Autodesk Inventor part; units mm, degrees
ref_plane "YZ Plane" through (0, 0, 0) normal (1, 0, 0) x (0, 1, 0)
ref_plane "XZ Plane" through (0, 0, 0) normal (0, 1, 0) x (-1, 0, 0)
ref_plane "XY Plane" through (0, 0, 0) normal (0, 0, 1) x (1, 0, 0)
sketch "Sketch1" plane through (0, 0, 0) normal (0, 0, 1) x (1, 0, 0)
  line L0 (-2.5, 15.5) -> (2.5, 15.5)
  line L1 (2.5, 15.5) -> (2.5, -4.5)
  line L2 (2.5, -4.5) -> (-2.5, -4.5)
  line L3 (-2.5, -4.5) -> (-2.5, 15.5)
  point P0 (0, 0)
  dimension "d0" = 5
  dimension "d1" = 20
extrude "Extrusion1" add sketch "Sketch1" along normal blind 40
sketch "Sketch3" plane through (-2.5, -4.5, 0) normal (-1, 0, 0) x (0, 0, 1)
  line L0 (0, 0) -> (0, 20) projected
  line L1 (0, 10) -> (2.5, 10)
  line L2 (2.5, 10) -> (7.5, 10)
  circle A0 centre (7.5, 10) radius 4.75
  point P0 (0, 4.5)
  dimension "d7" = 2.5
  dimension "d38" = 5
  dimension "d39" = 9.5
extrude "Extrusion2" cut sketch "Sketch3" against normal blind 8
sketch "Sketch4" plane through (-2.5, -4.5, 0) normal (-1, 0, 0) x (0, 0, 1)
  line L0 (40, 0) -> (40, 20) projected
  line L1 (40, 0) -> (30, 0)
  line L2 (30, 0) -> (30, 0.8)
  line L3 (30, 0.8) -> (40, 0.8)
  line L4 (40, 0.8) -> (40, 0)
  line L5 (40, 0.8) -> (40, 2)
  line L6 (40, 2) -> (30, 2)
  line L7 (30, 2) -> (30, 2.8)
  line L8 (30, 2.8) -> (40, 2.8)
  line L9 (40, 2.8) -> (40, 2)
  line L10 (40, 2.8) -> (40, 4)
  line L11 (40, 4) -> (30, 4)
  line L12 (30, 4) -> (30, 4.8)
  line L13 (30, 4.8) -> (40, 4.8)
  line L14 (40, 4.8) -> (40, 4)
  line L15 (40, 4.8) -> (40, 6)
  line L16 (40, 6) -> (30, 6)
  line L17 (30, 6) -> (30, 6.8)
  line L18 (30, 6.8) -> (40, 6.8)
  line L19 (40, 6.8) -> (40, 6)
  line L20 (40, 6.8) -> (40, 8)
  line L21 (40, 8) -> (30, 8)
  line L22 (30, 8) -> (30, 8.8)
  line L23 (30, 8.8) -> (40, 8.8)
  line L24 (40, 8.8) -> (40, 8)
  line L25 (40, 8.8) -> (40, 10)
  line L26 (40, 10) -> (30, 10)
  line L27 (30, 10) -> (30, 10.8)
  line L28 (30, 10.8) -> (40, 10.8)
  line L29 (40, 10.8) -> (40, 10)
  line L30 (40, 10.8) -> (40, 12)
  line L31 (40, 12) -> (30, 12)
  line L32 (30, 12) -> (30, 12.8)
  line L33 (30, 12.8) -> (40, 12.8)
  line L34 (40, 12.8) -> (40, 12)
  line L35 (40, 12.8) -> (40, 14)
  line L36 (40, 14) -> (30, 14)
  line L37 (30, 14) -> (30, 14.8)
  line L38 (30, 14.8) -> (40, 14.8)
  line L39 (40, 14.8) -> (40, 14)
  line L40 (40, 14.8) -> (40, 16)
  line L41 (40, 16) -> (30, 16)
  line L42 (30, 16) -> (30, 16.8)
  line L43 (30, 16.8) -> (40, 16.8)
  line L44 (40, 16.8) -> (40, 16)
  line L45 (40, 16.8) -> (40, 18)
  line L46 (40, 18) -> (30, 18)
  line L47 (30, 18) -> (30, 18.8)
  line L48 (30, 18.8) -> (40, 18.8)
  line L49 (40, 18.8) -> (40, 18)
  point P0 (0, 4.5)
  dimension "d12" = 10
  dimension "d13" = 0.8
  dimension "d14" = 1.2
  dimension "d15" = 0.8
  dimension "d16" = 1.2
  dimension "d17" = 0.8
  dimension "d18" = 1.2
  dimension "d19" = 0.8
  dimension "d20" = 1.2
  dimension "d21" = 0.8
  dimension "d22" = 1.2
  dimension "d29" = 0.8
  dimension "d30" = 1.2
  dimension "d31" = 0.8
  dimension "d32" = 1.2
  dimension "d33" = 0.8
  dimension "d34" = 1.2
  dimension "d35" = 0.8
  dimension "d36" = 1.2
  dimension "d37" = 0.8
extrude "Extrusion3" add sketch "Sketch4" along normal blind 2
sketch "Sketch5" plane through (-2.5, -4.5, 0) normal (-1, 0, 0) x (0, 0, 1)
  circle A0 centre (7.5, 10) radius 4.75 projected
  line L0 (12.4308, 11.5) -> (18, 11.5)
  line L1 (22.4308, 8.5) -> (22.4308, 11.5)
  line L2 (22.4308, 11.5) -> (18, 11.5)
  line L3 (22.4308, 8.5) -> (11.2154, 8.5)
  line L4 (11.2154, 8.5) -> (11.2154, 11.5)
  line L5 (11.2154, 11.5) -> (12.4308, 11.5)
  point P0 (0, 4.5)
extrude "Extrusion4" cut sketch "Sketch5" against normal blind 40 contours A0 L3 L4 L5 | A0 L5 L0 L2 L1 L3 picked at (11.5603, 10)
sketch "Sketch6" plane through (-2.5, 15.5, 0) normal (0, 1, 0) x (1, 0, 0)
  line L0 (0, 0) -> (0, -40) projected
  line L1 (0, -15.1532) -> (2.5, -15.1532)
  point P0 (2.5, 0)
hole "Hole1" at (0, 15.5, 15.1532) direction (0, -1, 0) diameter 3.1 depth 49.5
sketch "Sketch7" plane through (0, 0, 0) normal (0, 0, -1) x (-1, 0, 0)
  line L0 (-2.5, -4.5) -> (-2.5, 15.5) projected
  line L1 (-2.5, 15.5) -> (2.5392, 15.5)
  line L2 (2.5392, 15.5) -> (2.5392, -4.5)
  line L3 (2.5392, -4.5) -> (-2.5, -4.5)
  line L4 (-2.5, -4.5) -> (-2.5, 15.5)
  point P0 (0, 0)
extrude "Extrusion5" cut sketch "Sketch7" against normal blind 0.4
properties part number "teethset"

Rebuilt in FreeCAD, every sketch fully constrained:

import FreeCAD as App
import Part
import Sketcher
from FreeCAD import Vector

doc = App.newDocument("Part")
body = doc.addObject("PartDesign::Body", "Body")

# Sketch on XY plane
sketch1 = doc.addObject("Sketcher::SketchObject", "Sketch")
body.addObject(sketch1)
sketch1.AttachmentSupport = (doc.XY_Plane, [""])
sketch1.MapMode = "FlatFace"
sketch1.addGeometry([
    Part.LineSegment(Vector(2.5, 15.5, 0), Vector(-2.5, 15.5, 0)),
    Part.LineSegment(Vector(-2.5, 15.5, 0), Vector(-2.5, -4.5, 0)),
    Part.LineSegment(Vector(-2.5, -4.5, 0), Vector(2.5, -4.5, 0)),
    Part.LineSegment(Vector(2.5, -4.5, 0), Vector(2.5, 15.5, 0)),
], False)
sketch1.addConstraint([
    Sketcher.Constraint("Coincident", 0, 2, 1, 1),
    Sketcher.Constraint("Coincident", 1, 2, 2, 1),
    Sketcher.Constraint("Coincident", 2, 2, 3, 1),
    Sketcher.Constraint("Coincident", 3, 2, 0, 1),
    Sketcher.Constraint("Horizontal", 0),
    Sketcher.Constraint("Vertical", 1),
    Sketcher.Constraint("Horizontal", 2),
    Sketcher.Constraint("Vertical", 3),
    Sketcher.Constraint("DistanceX", 0, 2, 0, 1, 5.0),
    Sketcher.Constraint("DistanceY", 1, 2, 1, 1, 20.0),
    Sketcher.Constraint("DistanceX", 0, 2, -1, 1, 2.5),
    Sketcher.Constraint("DistanceY", -1, 1, 0, 2, 15.5),
])
pad1 = doc.addObject("PartDesign::Pad", "Pad")
body.addObject(pad1)
pad1.Profile = sketch1
pad1.Length = 40

# Sketch on YZ plane
sketch2 = doc.addObject("Sketcher::SketchObject", "Sketch001")
body.addObject(sketch2)
sketch2.AttachmentSupport = (doc.YZ_Plane, [""])
sketch2.MapMode = "FlatFace"
sketch2.AttachmentOffset = App.Placement(Vector(0, 0, -2.5), App.Rotation())
sketch2.addGeometry(Part.Circle(Vector(5.5, 7.5, 0), Vector(0, 0, 1), 4.75), False)
sketch2.addConstraint([
    Sketcher.Constraint("Diameter", 0, 9.5),
    Sketcher.Constraint("DistanceX", -1, 1, 0, 3, 5.5),
    Sketcher.Constraint("DistanceY", -1, 1, 0, 3, 7.5),
])
pocket1 = doc.addObject("PartDesign::Pocket", "Pocket")
body.addObject(pocket1)
pocket1.Profile = sketch2
pocket1.Length = 8
pocket1.Reversed = True

# Sketch on YZ plane
sketch3 = doc.addObject("Sketcher::SketchObject", "Sketch002")
body.addObject(sketch3)
sketch3.AttachmentSupport = (doc.YZ_Plane, [""])
sketch3.MapMode = "FlatFace"
sketch3.AttachmentOffset = App.Placement(Vector(0, 0, -2.5), App.Rotation())
sketch3.addGeometry([
    Part.LineSegment(Vector(-4.5, 30, 0), Vector(-4.5, 40, 0)),  # 0
    Part.LineSegment(Vector(-4.5, 40, 0), Vector(-3.7, 40, 0)),  # 1
    Part.LineSegment(Vector(-3.7, 40, 0), Vector(-3.7, 30, 0)),  # 2
    Part.LineSegment(Vector(-3.7, 30, 0), Vector(-4.5, 30, 0)),  # 3
    Part.LineSegment(Vector(13.5, 30, 0), Vector(13.5, 40, 0)),  # 4
    Part.LineSegment(Vector(13.5, 40, 0), Vector(14.3, 40, 0)),  # 5
    Part.LineSegment(Vector(14.3, 40, 0), Vector(14.3, 30, 0)),  # 6
    Part.LineSegment(Vector(14.3, 30, 0), Vector(13.5, 30, 0)),  # 7
    Part.LineSegment(Vector(11.5, 30, 0), Vector(11.5, 40, 0)),  # 8
    Part.LineSegment(Vector(11.5, 40, 0), Vector(12.3, 40, 0)),  # 9
    Part.LineSegment(Vector(12.3, 40, 0), Vector(12.3, 30, 0)),  # 10
    Part.LineSegment(Vector(12.3, 30, 0), Vector(11.5, 30, 0)),  # 11
    Part.LineSegment(Vector(9.5, 30, 0), Vector(9.5, 40, 0)),  # 12
    Part.LineSegment(Vector(9.5, 40, 0), Vector(10.3, 40, 0)),  # 13
    Part.LineSegment(Vector(10.3, 40, 0), Vector(10.3, 30, 0)),  # 14
    Part.LineSegment(Vector(10.3, 30, 0), Vector(9.5, 30, 0)),  # 15
    Part.LineSegment(Vector(7.5, 30, 0), Vector(7.5, 40, 0)),  # 16
    Part.LineSegment(Vector(7.5, 40, 0), Vector(8.3, 40, 0)),  # 17
    Part.LineSegment(Vector(8.3, 40, 0), Vector(8.3, 30, 0)),  # 18
    Part.LineSegment(Vector(8.3, 30, 0), Vector(7.5, 30, 0)),  # 19
    Part.LineSegment(Vector(5.5, 30, 0), Vector(5.5, 40, 0)),  # 20
    Part.LineSegment(Vector(5.5, 40, 0), Vector(6.3, 40, 0)),  # 21
    Part.LineSegment(Vector(6.3, 40, 0), Vector(6.3, 30, 0)),  # 22
    Part.LineSegment(Vector(6.3, 30, 0), Vector(5.5, 30, 0)),  # 23
    Part.LineSegment(Vector(3.5, 30, 0), Vector(3.5, 40, 0)),  # 24
    Part.LineSegment(Vector(3.5, 40, 0), Vector(4.3, 40, 0)),  # 25
    Part.LineSegment(Vector(4.3, 40, 0), Vector(4.3, 30, 0)),  # 26
    Part.LineSegment(Vector(4.3, 30, 0), Vector(3.5, 30, 0)),  # 27
    Part.LineSegment(Vector(1.5, 30, 0), Vector(1.5, 40, 0)),  # 28
    Part.LineSegment(Vector(1.5, 40, 0), Vector(2.3, 40, 0)),  # 29
    Part.LineSegment(Vector(2.3, 40, 0), Vector(2.3, 30, 0)),  # 30
    Part.LineSegment(Vector(2.3, 30, 0), Vector(1.5, 30, 0)),  # 31
    Part.LineSegment(Vector(-0.5, 30, 0), Vector(-0.5, 40, 0)),  # 32
    Part.LineSegment(Vector(-0.5, 40, 0), Vector(0.3, 40, 0)),  # 33
    Part.LineSegment(Vector(0.3, 40, 0), Vector(0.3, 30, 0)),  # 34
    Part.LineSegment(Vector(0.3, 30, 0), Vector(-0.5, 30, 0)),  # 35
    Part.LineSegment(Vector(-2.5, 30, 0), Vector(-2.5, 40, 0)),  # 36
    Part.LineSegment(Vector(-2.5, 40, 0), Vector(-1.7, 40, 0)),  # 37
    Part.LineSegment(Vector(-1.7, 40, 0), Vector(-1.7, 30, 0)),  # 38
    Part.LineSegment(Vector(-1.7, 30, 0), Vector(-2.5, 30, 0)),  # 39
], False)
sketch3.addConstraint([
    Sketcher.Constraint("Coincident", 0, 2, 1, 1),
    Sketcher.Constraint("Coincident", 1, 2, 2, 1),
    Sketcher.Constraint("Coincident", 2, 2, 3, 1),
    Sketcher.Constraint("Coincident", 3, 2, 0, 1),
    Sketcher.Constraint("Coincident", 4, 2, 5, 1),
    Sketcher.Constraint("Coincident", 5, 2, 6, 1),
    Sketcher.Constraint("Coincident", 6, 2, 7, 1),
    Sketcher.Constraint("Coincident", 7, 2, 4, 1),
    Sketcher.Constraint("Coincident", 8, 2, 9, 1),
    Sketcher.Constraint("Coincident", 9, 2, 10, 1),
    Sketcher.Constraint("Coincident", 10, 2, 11, 1),
    Sketcher.Constraint("Coincident", 11, 2, 8, 1),
    Sketcher.Constraint("Coincident", 12, 2, 13, 1),
    Sketcher.Constraint("Coincident", 13, 2, 14, 1),
    Sketcher.Constraint("Coincident", 14, 2, 15, 1),
    Sketcher.Constraint("Coincident", 15, 2, 12, 1),
    Sketcher.Constraint("Coincident", 16, 2, 17, 1),
    Sketcher.Constraint("Coincident", 17, 2, 18, 1),
    Sketcher.Constraint("Coincident", 18, 2, 19, 1),
    Sketcher.Constraint("Coincident", 19, 2, 16, 1),
    Sketcher.Constraint("Coincident", 20, 2, 21, 1),
    Sketcher.Constraint("Coincident", 21, 2, 22, 1),
    Sketcher.Constraint("Coincident", 22, 2, 23, 1),
    Sketcher.Constraint("Coincident", 23, 2, 20, 1),
    Sketcher.Constraint("Coincident", 24, 2, 25, 1),
    Sketcher.Constraint("Coincident", 25, 2, 26, 1),
    Sketcher.Constraint("Coincident", 26, 2, 27, 1),
    Sketcher.Constraint("Coincident", 27, 2, 24, 1),
    Sketcher.Constraint("Coincident", 28, 2, 29, 1),
    Sketcher.Constraint("Coincident", 29, 2, 30, 1),
    Sketcher.Constraint("Coincident", 30, 2, 31, 1),
    Sketcher.Constraint("Coincident", 31, 2, 28, 1),
    Sketcher.Constraint("Coincident", 32, 2, 33, 1),
    Sketcher.Constraint("Coincident", 33, 2, 34, 1),
    Sketcher.Constraint("Coincident", 34, 2, 35, 1),
    Sketcher.Constraint("Coincident", 35, 2, 32, 1),
    Sketcher.Constraint("Coincident", 36, 2, 37, 1),
    Sketcher.Constraint("Coincident", 37, 2, 38, 1),
    Sketcher.Constraint("Coincident", 38, 2, 39, 1),
    Sketcher.Constraint("Coincident", 39, 2, 36, 1),
    Sketcher.Constraint("Vertical", 0),
    Sketcher.Constraint("Horizontal", 1),
    Sketcher.Constraint("Vertical", 2),
    Sketcher.Constraint("Horizontal", 3),
    Sketcher.Constraint("Vertical", 4),
    Sketcher.Constraint("Horizontal", 5),
    Sketcher.Constraint("Vertical", 6),
    Sketcher.Constraint("Horizontal", 7),
    Sketcher.Constraint("Vertical", 8),
    Sketcher.Constraint("Horizontal", 9),
    Sketcher.Constraint("Vertical", 10),
    Sketcher.Constraint("Horizontal", 11),
    Sketcher.Constraint("Vertical", 12),
    Sketcher.Constraint("Horizontal", 13),
    Sketcher.Constraint("Vertical", 14),
    Sketcher.Constraint("Horizontal", 15),
    Sketcher.Constraint("Vertical", 16),
    Sketcher.Constraint("Horizontal", 17),
    Sketcher.Constraint("Vertical", 18),
    Sketcher.Constraint("Horizontal", 19),
    Sketcher.Constraint("Vertical", 20),
    Sketcher.Constraint("Horizontal", 21),
    Sketcher.Constraint("Vertical", 22),
    Sketcher.Constraint("Horizontal", 23),
    Sketcher.Constraint("Vertical", 24),
    Sketcher.Constraint("Horizontal", 25),
    Sketcher.Constraint("Vertical", 26),
    Sketcher.Constraint("Horizontal", 27),
    Sketcher.Constraint("Vertical", 28),
    Sketcher.Constraint("Horizontal", 29),
    Sketcher.Constraint("Vertical", 30),
    Sketcher.Constraint("Horizontal", 31),
    Sketcher.Constraint("Vertical", 32),
    Sketcher.Constraint("Horizontal", 33),
    Sketcher.Constraint("Vertical", 34),
    Sketcher.Constraint("Horizontal", 35),
    Sketcher.Constraint("Vertical", 36),
    Sketcher.Constraint("Horizontal", 37),
    Sketcher.Constraint("Vertical", 38),
    Sketcher.Constraint("Horizontal", 39),
    Sketcher.Constraint("Horizontal", 1, 2, 4, 2),
    Sketcher.Constraint("Horizontal", 3, 2, 6, 2),
    Sketcher.Constraint("Horizontal", 5, 2, 8, 2),
    Sketcher.Constraint("Horizontal", 7, 2, 10, 2),
    Sketcher.Constraint("Horizontal", 9, 2, 12, 2),
    Sketcher.Constraint("Horizontal", 11, 2, 14, 2),
    Sketcher.Constraint("Horizontal", 13, 2, 16, 2),
    Sketcher.Constraint("Horizontal", 15, 2, 18, 2),
    Sketcher.Constraint("Horizontal", 17, 2, 20, 2),
    Sketcher.Constraint("Horizontal", 19, 2, 22, 2),
    Sketcher.Constraint("Horizontal", 21, 2, 24, 2),
    Sketcher.Constraint("Horizontal", 23, 2, 26, 2),
    Sketcher.Constraint("Horizontal", 25, 2, 28, 2),
    Sketcher.Constraint("Horizontal", 27, 2, 30, 2),
    Sketcher.Constraint("Horizontal", 29, 2, 32, 2),
    Sketcher.Constraint("Horizontal", 31, 2, 34, 2),
    Sketcher.Constraint("Horizontal", 33, 2, 36, 2),
    Sketcher.Constraint("Horizontal", 35, 2, 38, 2),
    Sketcher.Constraint("Equal", 3, 5),
    Sketcher.Constraint("Equal", 7, 9),
    Sketcher.Constraint("Equal", 11, 13),
    Sketcher.Constraint("Equal", 15, 17),
    Sketcher.Constraint("Equal", 19, 21),
    Sketcher.Constraint("Equal", 23, 25),
    Sketcher.Constraint("Equal", 27, 29),
    Sketcher.Constraint("Equal", 31, 33),
    Sketcher.Constraint("Equal", 35, 37),
    Sketcher.Constraint("DistanceY", 0, 1, 0, 2, 10.0),
    Sketcher.Constraint("DistanceX", 1, 1, 1, 2, 0.8),
    Sketcher.Constraint("DistanceX", 9, 2, 4, 2, 1.2),
    Sketcher.Constraint("DistanceX", 13, 2, 8, 2, 1.2),
    Sketcher.Constraint("DistanceX", 17, 2, 12, 2, 1.2),
    Sketcher.Constraint("DistanceX", 21, 2, 16, 2, 1.2),
    Sketcher.Constraint("DistanceX", 25, 2, 20, 2, 1.2),
    Sketcher.Constraint("DistanceX", 29, 2, 24, 2, 1.2),
    Sketcher.Constraint("DistanceX", 33, 2, 28, 2, 1.2),
    Sketcher.Constraint("DistanceX", 1, 2, 36, 2, 1.2),
    Sketcher.Constraint("DistanceX", 37, 2, 32, 2, 1.2),
    Sketcher.Constraint("DistanceY", -1, 1, 0, 2, 40.0),
    Sketcher.Constraint("DistanceX", 0, 2, -1, 1, 4.5),
])
pad2 = doc.addObject("PartDesign::Pad", "Pad001")
body.addObject(pad2)
pad2.Profile = sketch3
pad2.Length = 2
pad2.Reversed = True

# Sketch on YZ plane
sketch4 = doc.addObject("Sketcher::SketchObject", "Sketch003")
body.addObject(sketch4)
sketch4.AttachmentSupport = (doc.YZ_Plane, [""])
sketch4.MapMode = "FlatFace"
sketch4.AttachmentOffset = App.Placement(Vector(0, 0, -2.5), App.Rotation())
sketch4.addGeometry([
    Part.LineSegment(Vector(4, 11.2154, 0), Vector(4, 22.4308, 0)),
    Part.LineSegment(Vector(4, 22.4308, 0), Vector(7, 22.4308, 0)),
    Part.LineSegment(Vector(7, 22.4308, 0), Vector(7, 11.2154, 0)),
    Part.LineSegment(Vector(7, 11.2154, 0), Vector(4, 11.2154, 0)),
], False)
sketch4.addConstraint([
    Sketcher.Constraint("Coincident", 0, 2, 1, 1),
    Sketcher.Constraint("Coincident", 1, 2, 2, 1),
    Sketcher.Constraint("Coincident", 2, 2, 3, 1),
    Sketcher.Constraint("Coincident", 3, 2, 0, 1),
    Sketcher.Constraint("Vertical", 0),
    Sketcher.Constraint("Horizontal", 1),
    Sketcher.Constraint("Vertical", 2),
    Sketcher.Constraint("Horizontal", 3),
    Sketcher.Constraint("DistanceX", 1, 1, 1, 2, 3.0),
    Sketcher.Constraint("DistanceX", -1, 1, 0, 2, 4.0),
    Sketcher.Constraint("DistanceY", 0, 1, 0, 2, 11.2154),
    Sketcher.Constraint("DistanceY", -1, 1, 0, 2, 22.4308),
])
pocket2 = doc.addObject("PartDesign::Pocket", "Pocket001")
body.addObject(pocket2)
pocket2.Profile = sketch4
pocket2.Length = 40
pocket2.Reversed = True

# Sketch on XZ plane
sketch5 = doc.addObject("Sketcher::SketchObject", "Sketch004")
body.addObject(sketch5)
sketch5.AttachmentSupport = (doc.XZ_Plane, [""])
sketch5.MapMode = "FlatFace"
sketch5.AttachmentOffset = App.Placement(Vector(0, 0, -15.5), App.Rotation())
sketch5.addGeometry(Part.Circle(Vector(0, 15.1532, 0), Vector(0, 0, 1), 1.55), False)
sketch5.addConstraint([
    Sketcher.Constraint("PointOnObject", 0, 3, -2),
    Sketcher.Constraint("Diameter", 0, 3.1),
    Sketcher.Constraint("DistanceY", -1, 1, 0, 3, 15.1532),
])
doc.recompute()
hole = doc.addObject("PartDesign::Hole", "Hole")
body.addObject(hole)
hole.Profile = sketch5
hole.ThreadType = "None"
hole.Diameter = 3.1
hole.DepthType = "Dimension"
hole.Depth = 49.5
hole.DrillPoint = "Flat"
hole.Reversed = True

# Sketch on XY plane
sketch6 = doc.addObject("Sketcher::SketchObject", "Sketch005")
body.addObject(sketch6)
sketch6.AttachmentSupport = (doc.XY_Plane, [""])
sketch6.MapMode = "FlatFace"
sketch6.addGeometry([
    Part.LineSegment(Vector(2.5, 15.5, 0), Vector(2.5, -4.5, 0)),
    Part.LineSegment(Vector(2.5, -4.5, 0), Vector(-2.5392, -4.5, 0)),
    Part.LineSegment(Vector(-2.5392, -4.5, 0), Vector(-2.5392, 15.5, 0)),
    Part.LineSegment(Vector(-2.5392, 15.5, 0), Vector(2.5, 15.5, 0)),
], False)
sketch6.addConstraint([
    Sketcher.Constraint("Coincident", 0, 2, 1, 1),
    Sketcher.Constraint("Coincident", 1, 2, 2, 1),
    Sketcher.Constraint("Coincident", 2, 2, 3, 1),
    Sketcher.Constraint("Coincident", 3, 2, 0, 1),
    Sketcher.Constraint("Vertical", 0),
    Sketcher.Constraint("Horizontal", 1),
    Sketcher.Constraint("Vertical", 2),
    Sketcher.Constraint("Horizontal", 3),
    Sketcher.Constraint("DistanceY", 0, 2, 0, 1, 20.0),
    Sketcher.Constraint("DistanceX", -1, 1, 0, 2, 2.5),
    Sketcher.Constraint("DistanceY", 0, 2, -1, 1, 4.5),
    Sketcher.Constraint("DistanceX", 1, 2, 1, 1, 5.0392),
])
pocket3 = doc.addObject("PartDesign::Pocket", "Pocket002")
body.addObject(pocket3)
pocket3.Profile = sketch6
pocket3.Length = 0.4
pocket3.Reversed = True

doc.recompute()
